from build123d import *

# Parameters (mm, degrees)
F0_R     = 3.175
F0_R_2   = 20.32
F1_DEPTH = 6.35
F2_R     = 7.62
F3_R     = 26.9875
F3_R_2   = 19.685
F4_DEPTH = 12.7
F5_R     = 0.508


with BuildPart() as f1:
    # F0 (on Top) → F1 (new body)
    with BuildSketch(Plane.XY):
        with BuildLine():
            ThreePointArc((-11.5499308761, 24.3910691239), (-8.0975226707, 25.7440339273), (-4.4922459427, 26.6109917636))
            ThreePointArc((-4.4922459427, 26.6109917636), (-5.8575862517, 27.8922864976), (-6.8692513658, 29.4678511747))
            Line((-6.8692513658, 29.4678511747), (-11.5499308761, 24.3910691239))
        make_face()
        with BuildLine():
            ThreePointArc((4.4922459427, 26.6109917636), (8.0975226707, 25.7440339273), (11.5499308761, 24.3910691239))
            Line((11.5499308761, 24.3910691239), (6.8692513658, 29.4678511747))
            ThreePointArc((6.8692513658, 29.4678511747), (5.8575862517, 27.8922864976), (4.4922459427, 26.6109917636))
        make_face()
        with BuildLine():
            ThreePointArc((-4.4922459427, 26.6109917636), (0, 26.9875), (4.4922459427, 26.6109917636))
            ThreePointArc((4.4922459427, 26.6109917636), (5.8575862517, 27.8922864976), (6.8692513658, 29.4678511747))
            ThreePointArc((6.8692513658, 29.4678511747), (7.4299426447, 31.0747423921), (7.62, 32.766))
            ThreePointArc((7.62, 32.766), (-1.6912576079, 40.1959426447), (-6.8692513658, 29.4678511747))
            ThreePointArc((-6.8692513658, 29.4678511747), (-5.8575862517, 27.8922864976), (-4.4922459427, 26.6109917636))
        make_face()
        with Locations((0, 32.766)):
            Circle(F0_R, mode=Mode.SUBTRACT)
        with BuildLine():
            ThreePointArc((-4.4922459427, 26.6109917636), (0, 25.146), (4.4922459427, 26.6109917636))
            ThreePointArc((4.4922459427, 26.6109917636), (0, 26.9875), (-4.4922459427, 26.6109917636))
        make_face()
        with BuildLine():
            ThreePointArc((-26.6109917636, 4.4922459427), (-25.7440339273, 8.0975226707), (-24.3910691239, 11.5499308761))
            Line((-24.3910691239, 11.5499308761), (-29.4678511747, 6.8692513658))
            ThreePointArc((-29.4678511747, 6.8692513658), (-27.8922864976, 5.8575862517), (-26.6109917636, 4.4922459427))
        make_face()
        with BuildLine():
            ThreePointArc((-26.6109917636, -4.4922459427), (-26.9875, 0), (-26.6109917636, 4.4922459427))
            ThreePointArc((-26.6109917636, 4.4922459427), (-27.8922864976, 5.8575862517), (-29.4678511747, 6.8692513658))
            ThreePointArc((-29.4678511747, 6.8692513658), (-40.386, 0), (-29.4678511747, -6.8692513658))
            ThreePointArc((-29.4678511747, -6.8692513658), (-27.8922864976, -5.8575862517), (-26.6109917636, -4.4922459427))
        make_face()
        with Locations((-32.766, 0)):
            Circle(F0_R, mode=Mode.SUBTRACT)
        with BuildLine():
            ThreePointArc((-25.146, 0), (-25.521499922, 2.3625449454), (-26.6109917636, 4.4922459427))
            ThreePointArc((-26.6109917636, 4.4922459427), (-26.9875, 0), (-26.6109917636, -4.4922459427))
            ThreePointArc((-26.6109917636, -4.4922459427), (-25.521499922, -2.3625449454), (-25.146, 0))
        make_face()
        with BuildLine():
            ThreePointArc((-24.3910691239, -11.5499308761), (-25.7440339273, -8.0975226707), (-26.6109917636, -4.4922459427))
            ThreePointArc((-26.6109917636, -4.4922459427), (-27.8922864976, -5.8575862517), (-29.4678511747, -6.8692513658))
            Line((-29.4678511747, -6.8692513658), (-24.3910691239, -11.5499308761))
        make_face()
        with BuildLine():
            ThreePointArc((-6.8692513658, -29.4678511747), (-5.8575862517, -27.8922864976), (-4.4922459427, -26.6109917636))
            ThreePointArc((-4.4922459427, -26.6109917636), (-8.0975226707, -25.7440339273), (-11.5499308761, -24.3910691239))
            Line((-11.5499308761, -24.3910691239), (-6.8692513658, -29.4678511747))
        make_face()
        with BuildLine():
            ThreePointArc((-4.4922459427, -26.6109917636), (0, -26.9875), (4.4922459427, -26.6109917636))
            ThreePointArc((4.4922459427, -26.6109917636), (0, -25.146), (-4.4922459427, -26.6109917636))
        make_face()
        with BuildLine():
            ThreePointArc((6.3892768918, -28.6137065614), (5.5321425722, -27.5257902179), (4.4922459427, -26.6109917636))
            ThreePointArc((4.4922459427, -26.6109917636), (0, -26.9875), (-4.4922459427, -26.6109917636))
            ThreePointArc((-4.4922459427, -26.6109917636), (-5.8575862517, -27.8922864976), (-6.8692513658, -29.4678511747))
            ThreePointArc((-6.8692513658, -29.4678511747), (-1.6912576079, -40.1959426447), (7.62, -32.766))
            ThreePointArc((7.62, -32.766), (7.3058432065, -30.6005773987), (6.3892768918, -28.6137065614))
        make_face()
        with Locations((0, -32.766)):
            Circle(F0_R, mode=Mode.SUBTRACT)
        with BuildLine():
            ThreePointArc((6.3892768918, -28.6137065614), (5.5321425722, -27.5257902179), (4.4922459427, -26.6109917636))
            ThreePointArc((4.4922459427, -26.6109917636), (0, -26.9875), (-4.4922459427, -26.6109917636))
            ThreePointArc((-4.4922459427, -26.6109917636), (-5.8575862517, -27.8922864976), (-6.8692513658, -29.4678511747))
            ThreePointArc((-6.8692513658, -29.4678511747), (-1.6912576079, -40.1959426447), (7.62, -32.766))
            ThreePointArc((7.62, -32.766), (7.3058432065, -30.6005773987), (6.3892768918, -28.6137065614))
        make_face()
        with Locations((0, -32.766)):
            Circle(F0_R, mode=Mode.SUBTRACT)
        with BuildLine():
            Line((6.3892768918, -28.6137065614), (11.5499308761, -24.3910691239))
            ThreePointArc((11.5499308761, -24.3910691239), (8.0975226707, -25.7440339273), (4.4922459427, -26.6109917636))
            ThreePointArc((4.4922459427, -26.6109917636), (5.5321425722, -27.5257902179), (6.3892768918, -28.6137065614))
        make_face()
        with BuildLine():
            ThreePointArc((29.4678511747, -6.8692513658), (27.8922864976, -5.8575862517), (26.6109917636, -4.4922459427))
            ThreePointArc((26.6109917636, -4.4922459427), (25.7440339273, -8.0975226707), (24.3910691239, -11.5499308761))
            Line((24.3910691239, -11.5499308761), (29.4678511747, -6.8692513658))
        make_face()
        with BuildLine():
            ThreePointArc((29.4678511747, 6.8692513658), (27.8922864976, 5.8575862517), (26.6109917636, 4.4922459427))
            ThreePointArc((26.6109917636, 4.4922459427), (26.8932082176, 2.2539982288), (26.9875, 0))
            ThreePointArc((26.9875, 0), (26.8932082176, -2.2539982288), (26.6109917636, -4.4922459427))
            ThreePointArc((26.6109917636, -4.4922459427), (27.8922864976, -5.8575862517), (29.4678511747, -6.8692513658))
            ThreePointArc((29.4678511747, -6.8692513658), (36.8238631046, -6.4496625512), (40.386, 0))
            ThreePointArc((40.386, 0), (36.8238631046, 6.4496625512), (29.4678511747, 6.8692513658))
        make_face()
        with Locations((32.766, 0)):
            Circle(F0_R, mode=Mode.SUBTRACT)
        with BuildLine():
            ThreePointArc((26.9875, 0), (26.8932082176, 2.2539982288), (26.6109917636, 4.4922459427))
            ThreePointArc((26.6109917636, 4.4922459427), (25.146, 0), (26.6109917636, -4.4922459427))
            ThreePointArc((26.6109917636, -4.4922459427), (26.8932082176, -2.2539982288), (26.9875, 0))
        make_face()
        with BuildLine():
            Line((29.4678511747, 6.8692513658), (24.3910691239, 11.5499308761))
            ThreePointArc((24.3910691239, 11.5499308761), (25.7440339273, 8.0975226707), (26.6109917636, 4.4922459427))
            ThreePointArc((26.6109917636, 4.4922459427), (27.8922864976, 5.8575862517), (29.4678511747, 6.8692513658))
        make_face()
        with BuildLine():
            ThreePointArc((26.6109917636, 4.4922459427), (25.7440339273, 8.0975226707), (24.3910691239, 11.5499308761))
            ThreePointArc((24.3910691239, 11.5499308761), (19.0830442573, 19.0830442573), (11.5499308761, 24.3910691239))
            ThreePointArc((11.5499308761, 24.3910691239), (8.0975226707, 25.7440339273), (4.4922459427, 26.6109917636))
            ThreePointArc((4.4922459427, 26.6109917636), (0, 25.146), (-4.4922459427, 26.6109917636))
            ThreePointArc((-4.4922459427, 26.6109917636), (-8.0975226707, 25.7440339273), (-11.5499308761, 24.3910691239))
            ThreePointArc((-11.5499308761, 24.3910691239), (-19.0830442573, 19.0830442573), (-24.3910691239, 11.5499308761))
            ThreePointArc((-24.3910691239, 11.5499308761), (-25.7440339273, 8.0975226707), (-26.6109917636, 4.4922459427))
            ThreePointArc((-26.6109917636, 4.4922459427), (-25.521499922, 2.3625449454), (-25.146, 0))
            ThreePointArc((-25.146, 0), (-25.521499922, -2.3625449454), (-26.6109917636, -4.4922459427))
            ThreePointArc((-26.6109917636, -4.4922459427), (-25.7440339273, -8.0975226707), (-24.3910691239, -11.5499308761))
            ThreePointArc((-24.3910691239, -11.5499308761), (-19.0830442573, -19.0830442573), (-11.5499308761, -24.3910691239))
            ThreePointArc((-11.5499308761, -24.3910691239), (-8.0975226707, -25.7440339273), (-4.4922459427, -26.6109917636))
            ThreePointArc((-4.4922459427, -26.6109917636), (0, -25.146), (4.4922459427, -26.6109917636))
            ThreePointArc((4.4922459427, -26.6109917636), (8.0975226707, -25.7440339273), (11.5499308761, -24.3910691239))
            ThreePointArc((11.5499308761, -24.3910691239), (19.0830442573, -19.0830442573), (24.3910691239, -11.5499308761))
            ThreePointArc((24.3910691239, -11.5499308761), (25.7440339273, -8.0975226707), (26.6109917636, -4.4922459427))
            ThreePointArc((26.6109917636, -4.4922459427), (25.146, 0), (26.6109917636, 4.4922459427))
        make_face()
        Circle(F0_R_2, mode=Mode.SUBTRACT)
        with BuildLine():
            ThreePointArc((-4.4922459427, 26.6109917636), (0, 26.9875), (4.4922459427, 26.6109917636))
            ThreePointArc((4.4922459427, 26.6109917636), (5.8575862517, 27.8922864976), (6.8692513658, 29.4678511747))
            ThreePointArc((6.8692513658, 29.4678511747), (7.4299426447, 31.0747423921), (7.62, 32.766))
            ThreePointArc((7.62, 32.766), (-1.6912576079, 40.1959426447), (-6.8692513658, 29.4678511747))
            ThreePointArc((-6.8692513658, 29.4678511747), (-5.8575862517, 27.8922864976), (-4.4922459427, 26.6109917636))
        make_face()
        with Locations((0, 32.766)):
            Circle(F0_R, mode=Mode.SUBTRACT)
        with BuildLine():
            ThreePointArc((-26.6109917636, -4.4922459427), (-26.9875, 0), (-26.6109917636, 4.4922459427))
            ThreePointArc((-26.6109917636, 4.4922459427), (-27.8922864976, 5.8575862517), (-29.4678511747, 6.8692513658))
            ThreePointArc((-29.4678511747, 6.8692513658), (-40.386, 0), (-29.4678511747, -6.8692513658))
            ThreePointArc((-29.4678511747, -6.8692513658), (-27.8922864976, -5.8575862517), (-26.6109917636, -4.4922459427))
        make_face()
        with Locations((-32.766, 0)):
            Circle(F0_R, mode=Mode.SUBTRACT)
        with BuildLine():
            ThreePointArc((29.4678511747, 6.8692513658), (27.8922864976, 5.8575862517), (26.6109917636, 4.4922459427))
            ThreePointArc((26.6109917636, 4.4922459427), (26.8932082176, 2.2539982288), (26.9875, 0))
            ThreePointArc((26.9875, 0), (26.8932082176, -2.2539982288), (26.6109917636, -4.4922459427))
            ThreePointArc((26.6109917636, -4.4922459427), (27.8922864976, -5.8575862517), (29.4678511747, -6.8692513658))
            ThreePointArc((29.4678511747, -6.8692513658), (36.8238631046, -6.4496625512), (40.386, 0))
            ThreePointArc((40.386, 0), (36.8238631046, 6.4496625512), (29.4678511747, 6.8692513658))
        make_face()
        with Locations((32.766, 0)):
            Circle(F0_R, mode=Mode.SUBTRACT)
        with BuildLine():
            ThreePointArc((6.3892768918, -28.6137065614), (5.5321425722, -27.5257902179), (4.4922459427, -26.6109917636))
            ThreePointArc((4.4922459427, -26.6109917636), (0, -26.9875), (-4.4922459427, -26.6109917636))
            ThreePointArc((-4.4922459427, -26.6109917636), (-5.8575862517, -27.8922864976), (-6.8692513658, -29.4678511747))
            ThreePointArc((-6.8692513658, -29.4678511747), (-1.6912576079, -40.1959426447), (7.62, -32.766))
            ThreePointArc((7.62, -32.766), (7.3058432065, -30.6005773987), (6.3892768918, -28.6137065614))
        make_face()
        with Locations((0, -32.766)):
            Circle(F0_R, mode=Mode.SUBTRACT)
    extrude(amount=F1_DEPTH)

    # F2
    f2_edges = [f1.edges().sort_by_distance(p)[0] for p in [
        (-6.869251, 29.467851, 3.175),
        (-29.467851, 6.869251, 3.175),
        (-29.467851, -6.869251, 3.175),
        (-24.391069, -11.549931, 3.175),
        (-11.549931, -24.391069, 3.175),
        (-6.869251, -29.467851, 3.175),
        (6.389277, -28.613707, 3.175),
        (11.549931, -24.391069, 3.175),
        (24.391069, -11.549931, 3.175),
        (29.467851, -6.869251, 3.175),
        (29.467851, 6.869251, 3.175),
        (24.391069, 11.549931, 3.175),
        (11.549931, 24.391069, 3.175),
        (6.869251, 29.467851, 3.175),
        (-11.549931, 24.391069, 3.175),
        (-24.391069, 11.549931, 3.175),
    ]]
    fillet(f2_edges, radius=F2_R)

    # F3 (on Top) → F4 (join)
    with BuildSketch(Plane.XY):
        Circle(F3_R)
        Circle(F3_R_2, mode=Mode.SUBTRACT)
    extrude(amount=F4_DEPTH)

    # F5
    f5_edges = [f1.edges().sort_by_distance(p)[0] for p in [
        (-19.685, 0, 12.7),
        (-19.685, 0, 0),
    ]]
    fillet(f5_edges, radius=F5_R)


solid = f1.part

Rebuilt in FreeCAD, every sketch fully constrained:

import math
import FreeCAD as App
import Part
import Sketcher

V = App.Vector
Q = App.Units.Quantity


def edges_at(feature, points):
    """Names of the edges that pass closest to the given points."""
    edges = feature.Shape.Edges
    near = lambda p: min(range(len(edges)), key=lambda i: edges[i].distToShape(Part.Vertex(*p))[0])
    return sorted({f"Edge{near(p) + 1}" for p in points})

doc = App.newDocument("Part")
body = doc.addObject("PartDesign::Body", "Body")

# Sketch on XY plane
sketch1 = body.newObject("Sketcher::SketchObject", "Sketch")
sketch1.AttachmentSupport = (doc.getObject("XY_Plane"), [""])
sketch1.MapMode = "FlatFace"
sketch1.addGeometry([
    Part.ArcOfCircle(Part.Circle(V(0, 0, 0), V(0, 0, 1), 27), math.radians(-65), math.radians(-25)),  # 0
    Part.LineSegment(V(24.4, -11.5, 0), V(29.5, -6.9, 0)),  # 1
    Part.ArcOfCircle(Part.Circle(V(32.8, 0, 0), V(0, 0, 1), 7.6), math.radians(-116), math.radians(0)),  # 2
    Part.ArcOfCircle(Part.Circle(V(32.8, 0, 0), V(0, 0, 1), 7.6), math.radians(0), math.radians(116)),  # 3
    Part.LineSegment(V(29.5, 6.9, 0), V(24.4, 11.5, 0)),  # 4
    Part.ArcOfCircle(Part.Circle(V(0, 0, 0), V(0, 0, 1), 27), math.radians(25), math.radians(65)),  # 5
    Part.LineSegment(V(11.5, 24.4, 0), V(6.9, 29.5, 0)),  # 6
    Part.ArcOfCircle(Part.Circle(V(0, 32.8, 0), V(0, 0, 1), 7.6), math.radians(-26), math.radians(0)),  # 7
    Part.ArcOfCircle(Part.Circle(V(0, 32.8, 0), V(0, 0, 1), 7.6), math.radians(0), math.radians(206)),  # 8
    Part.LineSegment(V(-6.9, 29.5, 0), V(-11.5, 24.4, 0)),  # 9
    Part.ArcOfCircle(Part.Circle(V(0, 0, 0), V(0, 0, 1), 27), math.radians(115), math.radians(155)),  # 10
    Part.LineSegment(V(-24.4, 11.5, 0), V(-29.5, 6.9, 0)),  # 11
    Part.ArcOfCircle(Part.Circle(V(-32.8, 0, 0), V(0, 0, 1), 7.6), math.radians(64), math.radians(296)),  # 12
    Part.LineSegment(V(-29.5, -6.9, 0), V(-24.4, -11.5, 0)),  # 13
    Part.ArcOfCircle(Part.Circle(V(0, 0, 0), V(0, 0, 1), 27), math.radians(-155), math.radians(-115)),  # 14
    Part.LineSegment(V(-11.5, -24.4, 0), V(-6.9, -29.5, 0)),  # 15
    Part.ArcOfCircle(Part.Circle(V(0, -32.8, 0), V(0, 0, 1), 7.6), math.radians(154), math.radians(360)),  # 16
    Part.ArcOfCircle(Part.Circle(V(0, -32.8, 0), V(0, 0, 1), 7.6), math.radians(0), math.radians(33)),  # 17
    Part.LineSegment(V(6.4, -28.6, 0), V(11.5, -24.4, 0)),  # 18
    Part.Circle(V(-32.8, 0, 0), V(0, 0, 1), 3.2),  # 19
    Part.Circle(V(0, -32.8, 0), V(0, 0, 1), 3.2),  # 20
    Part.Circle(V(32.8, 0, 0), V(0, 0, 1), 3.2),  # 21
    Part.Circle(V(0, 0, 0), V(0, 0, 1), 20.3),  # 22
    Part.Circle(V(0, 32.8, 0), V(0, 0, 1), 3.2),  # 23
], False)
sketch1.addConstraint([
    Sketcher.Constraint("Coincident", 0, 2, 1, 1),
    Sketcher.Constraint("Coincident", 1, 2, 2, 1),
    Sketcher.Constraint("Tangent", 2, 2, 3, 1),
    Sketcher.Constraint("Coincident", 3, 2, 4, 1),
    Sketcher.Constraint("Coincident", 4, 2, 5, 1),
    Sketcher.Constraint("Coincident", 5, 2, 6, 1),
    Sketcher.Constraint("Coincident", 6, 2, 7, 1),
    Sketcher.Constraint("Tangent", 7, 2, 8, 1),
    Sketcher.Constraint("Coincident", 8, 2, 9, 1),
    Sketcher.Constraint("Coincident", 9, 2, 10, 1),
    Sketcher.Constraint("Coincident", 10, 2, 11, 1),
    Sketcher.Constraint("Coincident", 11, 2, 12, 1),
    Sketcher.Constraint("Coincident", 12, 2, 13, 1),
    Sketcher.Constraint("Coincident", 13, 2, 14, 1),
    Sketcher.Constraint("Coincident", 14, 2, 15, 1),
    Sketcher.Constraint("Coincident", 15, 2, 16, 1),
    Sketcher.Constraint("Tangent", 16, 2, 17, 1),
    Sketcher.Constraint("Coincident", 17, 2, 18, 1),
    Sketcher.Constraint("Coincident", 18, 2, 0, 1),
    Sketcher.Constraint("Coincident", 0, 3, -1, 1),
    Sketcher.Constraint("Coincident", 5, 3, -1, 1),
    Sketcher.Constraint("Coincident", 10, 3, -1, 1),
    Sketcher.Constraint("Coincident", 14, 3, -1, 1),
    Sketcher.Constraint("Coincident", 22, 3, -1, 1),
    Sketcher.Constraint("Coincident", 19, 3, 12, 3),
    Sketcher.Constraint("Coincident", 20, 3, 16, 3),
    Sketcher.Constraint("Coincident", 21, 3, 2, 3),
    Sketcher.Constraint("Coincident", 23, 3, 7, 3),
    Sketcher.Constraint("Equal", 2, 3),
    Sketcher.Constraint("Equal", 0, 5),
    Sketcher.Constraint("Equal", 3, 7),
    Sketcher.Constraint("Equal", 7, 8),
    Sketcher.Constraint("Equal", 5, 10),
    Sketcher.Constraint("Equal", 8, 12),
    Sketcher.Constraint("Equal", 10, 14),
    Sketcher.Constraint("Equal", 12, 16),
    Sketcher.Constraint("Equal", 16, 17),
    Sketcher.Constraint("Equal", 19, 20),
    Sketcher.Constraint("Equal", 20, 21),
    Sketcher.Constraint("Equal", 21, 23),
    Sketcher.Constraint("Symmetric", 2, 3, 12, 3, -1, 1),
    Sketcher.Constraint("Symmetric", 7, 3, 16, 3, -1, 1),
    Sketcher.Constraint("Symmetric", 6, 2, 8, 2, -2),
    Sketcher.Constraint("Symmetric", 3, 2, 11, 2, -2),
    Sketcher.Constraint("PointOnObject", 2, 2, -1),
    Sketcher.Constraint("Perpendicular", 1, 6),
    Sketcher.Constraint("Perpendicular", 4, 9),
    Sketcher.Constraint("Perpendicular", 6, 11),
    Sketcher.Constraint("Perpendicular", 9, 13),
    Sketcher.Constraint("Perpendicular", 11, 15),
    Sketcher.Constraint("Horizontal", 23, 3, 7, 2),
    Sketcher.Constraint("Horizontal", 5, 2, 9, 2),
    Sketcher.Constraint("Horizontal", 1, 2, 12, 2),
    Sketcher.Constraint("Horizontal", 20, 3, 16, 2),
    Sketcher.Constraint("Horizontal", 14, 2, 18, 2),
    Sketcher.Constraint("Vertical", 1, 2, 3, 2),
    Sketcher.Constraint("Vertical", 9, 2, 14, 2),
    Sketcher.Constraint("Equal", 4, 6),
    Sketcher.Constraint("Diameter", 22, Q("1.6 in")),
    Sketcher.Constraint("Radius", 2, Q("0.3 in")),
    Sketcher.Constraint("Diameter", 19, Q("0.25 in")),
    Sketcher.Constraint("Radius", 0, Q("1.0625 in")),
    Sketcher.Constraint("DistanceX", -1, 1, 2, 3, Q("1.29 in")),
    Sketcher.Constraint("DistanceY", -1, 1, 7, 3, Q("1.29 in")),
    Sketcher.Constraint("Distance", 1, Q("6.90525 mm")),
    Sketcher.Constraint("Distance", 18, Q("6.668059 mm")),
    Sketcher.Constraint("DistanceX", -1, 1, 0, 2, Q("24.391069 mm")),
])
pad1 = body.newObject("PartDesign::Pad", "Pad")
pad1.Profile = sketch1
pad1.Length = Q("0.25 in")
doc.recompute()

fillet = body.newObject("PartDesign::Fillet", "Fillet")
fillet.Base = (pad1, edges_at(pad1, [
    (-6.869, 29.468, 3.175),
    (-29.468, 6.869, 3.175),
    (-29.468, -6.869, 3.175),
    (-24.391, -11.55, 3.175),
    (-11.55, -24.391, 3.175),
    (-6.869, -29.468, 3.175),
    (6.389, -28.614, 3.175),
    (11.55, -24.391, 3.175),
    (24.391, -11.55, 3.175),
    (29.468, -6.869, 3.175),
    (29.468, 6.869, 3.175),
    (24.391, 11.55, 3.175),
    (11.55, 24.391, 3.175),
    (6.869, 29.468, 3.175),
    (-11.55, 24.391, 3.175),
    (-24.391, 11.55, 3.175),
]))
fillet.Radius = Q("0.3 in")

# Sketch on XY plane
sketch2 = body.newObject("Sketcher::SketchObject", "Sketch001")
sketch2.AttachmentSupport = (doc.getObject("XY_Plane"), [""])
sketch2.MapMode = "FlatFace"
sketch2.addGeometry([
    Part.Circle(V(0, 0, 0), V(0, 0, 1), 27),
    Part.Circle(V(0, 0, 0), V(0, 0, 1), 20),
], False)
sketch2.addConstraint([
    Sketcher.Constraint("Coincident", 0, 3, -1, 1),
    Sketcher.Constraint("Coincident", 1, 3, -1, 1),
    Sketcher.Constraint("Diameter", 1, Q("1.55 in")),
    Sketcher.Constraint("Diameter", 0, Q("2.125 in")),
])
pad2 = body.newObject("PartDesign::Pad", "Pad001")
pad2.Profile = sketch2
pad2.Length = Q("0.5 in")
doc.recompute()

fillet2 = body.newObject("PartDesign::Fillet", "Fillet001")
fillet2.Base = (pad2, edges_at(pad2, [(-19.685, 0, 12.7), (-19.685, 0, 0)]))
fillet2.Radius = Q("0.02 in")

doc.recompute()
